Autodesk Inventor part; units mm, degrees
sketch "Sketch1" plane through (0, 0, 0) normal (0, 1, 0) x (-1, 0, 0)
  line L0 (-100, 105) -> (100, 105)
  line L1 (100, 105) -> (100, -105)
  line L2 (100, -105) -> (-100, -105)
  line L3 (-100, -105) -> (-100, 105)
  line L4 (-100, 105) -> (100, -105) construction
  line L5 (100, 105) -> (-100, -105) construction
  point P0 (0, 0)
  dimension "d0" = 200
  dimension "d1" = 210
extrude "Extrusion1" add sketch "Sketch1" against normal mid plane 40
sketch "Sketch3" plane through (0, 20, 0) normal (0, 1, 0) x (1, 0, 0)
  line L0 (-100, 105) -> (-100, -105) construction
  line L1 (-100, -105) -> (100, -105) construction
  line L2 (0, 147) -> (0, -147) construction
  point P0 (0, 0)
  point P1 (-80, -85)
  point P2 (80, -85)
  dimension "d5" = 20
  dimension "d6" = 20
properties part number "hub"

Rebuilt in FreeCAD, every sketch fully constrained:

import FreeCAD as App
import Part
import Sketcher
from FreeCAD import Vector


def add_polygon(sketch, points):
    """Adds a closed chain of lines whose ends are joined by coincident constraints."""
    first, n = sketch.GeometryCount, len(points)
    for a, b in zip(points, points[1:] + points[:1]):
        sketch.addGeometry(Part.LineSegment(App.Vector(*a, 0), App.Vector(*b, 0)), False)
    for i in range(n):
        sketch.addConstraint(Sketcher.Constraint("Coincident", first + i, 2, first + (i + 1) % n, 1))

doc = App.newDocument("Part")
body = doc.addObject("PartDesign::Body", "Body")

# Sketch on XZ plane
sketch1 = body.newObject("Sketcher::SketchObject", "Sketch")
sketch1.AttachmentSupport = (doc.getObject("XZ_Plane"), [""])
sketch1.MapMode = "FlatFace"
add_polygon(sketch1, [(-100, 105), (100, 105), (100, -105), (-100, -105)])  # lines 0-3
sketch1.addConstraint([
    Sketcher.Constraint("Horizontal", 0),
    Sketcher.Constraint("Vertical", 1),
    Sketcher.Constraint("Horizontal", 2),
    Sketcher.Constraint("Vertical", 3),
    Sketcher.Constraint("Symmetric", 0, 2, 2, 2, -1, 1),
    Sketcher.Constraint("DistanceX", 0, 1, 0, 2, 200.0),
    Sketcher.Constraint("DistanceY", 1, 2, 1, 1, 210.0),
])
pad1 = body.newObject("PartDesign::Pad", "Pad")
pad1.Profile = sketch1
pad1.Length = 40
pad1.Midplane = True

doc.recompute()
